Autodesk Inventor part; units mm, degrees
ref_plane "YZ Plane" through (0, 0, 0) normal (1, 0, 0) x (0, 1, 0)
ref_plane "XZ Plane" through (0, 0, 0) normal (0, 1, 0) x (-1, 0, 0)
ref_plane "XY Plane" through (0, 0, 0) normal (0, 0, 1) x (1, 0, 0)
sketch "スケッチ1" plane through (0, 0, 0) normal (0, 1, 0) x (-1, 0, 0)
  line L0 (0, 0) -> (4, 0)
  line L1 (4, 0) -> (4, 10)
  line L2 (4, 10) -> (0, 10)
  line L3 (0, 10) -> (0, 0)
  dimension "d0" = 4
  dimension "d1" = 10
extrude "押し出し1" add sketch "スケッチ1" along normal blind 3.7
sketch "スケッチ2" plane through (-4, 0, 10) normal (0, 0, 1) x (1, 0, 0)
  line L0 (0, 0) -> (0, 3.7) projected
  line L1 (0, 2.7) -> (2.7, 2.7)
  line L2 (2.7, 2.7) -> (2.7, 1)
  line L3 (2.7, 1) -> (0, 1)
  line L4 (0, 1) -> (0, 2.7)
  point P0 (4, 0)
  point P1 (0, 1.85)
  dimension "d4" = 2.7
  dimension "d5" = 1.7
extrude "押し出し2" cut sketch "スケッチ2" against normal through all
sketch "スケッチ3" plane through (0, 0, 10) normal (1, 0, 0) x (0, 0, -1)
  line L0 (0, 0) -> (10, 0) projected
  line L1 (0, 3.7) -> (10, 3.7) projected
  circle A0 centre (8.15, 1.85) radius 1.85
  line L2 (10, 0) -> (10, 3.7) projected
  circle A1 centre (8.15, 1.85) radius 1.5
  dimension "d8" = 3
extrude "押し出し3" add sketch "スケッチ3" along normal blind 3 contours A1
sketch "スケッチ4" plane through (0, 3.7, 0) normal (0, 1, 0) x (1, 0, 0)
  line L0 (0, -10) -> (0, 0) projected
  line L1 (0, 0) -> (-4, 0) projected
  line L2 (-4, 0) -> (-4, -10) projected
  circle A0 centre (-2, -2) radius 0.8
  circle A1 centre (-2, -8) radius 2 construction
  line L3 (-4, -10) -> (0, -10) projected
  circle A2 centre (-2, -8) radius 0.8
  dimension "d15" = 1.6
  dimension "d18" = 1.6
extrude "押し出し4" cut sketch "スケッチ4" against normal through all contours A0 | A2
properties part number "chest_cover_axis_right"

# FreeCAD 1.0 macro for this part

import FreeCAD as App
import Part
import Sketcher
Q = App.Units.Quantity

doc = App.newDocument("Part")
params = doc.addObject("Spreadsheet::Sheet", "Params")
for row, (alias, value) in enumerate([
    ("sketch1_width", "4 mm"),
    ("sketch1_height", "10 mm"),
    ("pad1_length", "3.7 mm"),
    ("sketch2_width", "2.7 mm"),
    ("sketch2_height", "1.7 mm"),
    ("sketch3_diameter", "3 mm"),
    ("pad2_length", "3 mm"),
    ("sketch4_diameter", "1.6 mm"),
], start=1):
    params.set(f"A{row}", alias)
    params.set(f"B{row}", "=" + value)
    params.setAlias(f"B{row}", alias)

body = doc.addObject("PartDesign::Body", "Body")

sketch1 = body.newObject("Sketcher::SketchObject", "Sketch")
sketch1.AttachmentSupport = (doc.getObject("XZ_Plane"), [""])
sketch1.MapMode = "FlatFace"
sketch1.addGeometry([
    Part.LineSegment(App.Vector(0, 10, 0), App.Vector(0, 0, 0)),
    Part.LineSegment(App.Vector(0, 0, 0), App.Vector(-4, 0, 0)),
    Part.LineSegment(App.Vector(-4, 0, 0), App.Vector(-4, 10, 0)),
    Part.LineSegment(App.Vector(-4, 10, 0), App.Vector(0, 10, 0)),
], False)
sketch1.addConstraint([
    Sketcher.Constraint("Coincident", 0, 2, 1, 1),
    Sketcher.Constraint("Coincident", 1, 2, 2, 1),
    Sketcher.Constraint("Coincident", 2, 2, 3, 1),
    Sketcher.Constraint("Coincident", 3, 2, 0, 1),
    Sketcher.Constraint("Vertical", 0),
    Sketcher.Constraint("Horizontal", 1),
    Sketcher.Constraint("Vertical", 2),
    Sketcher.Constraint("Horizontal", 3),
    Sketcher.Constraint("Coincident", 0, 2, -1, 1),
    Sketcher.Constraint("DistanceX", 1, 2, 1, 1, Q("4 mm")),
    Sketcher.Constraint("DistanceY", 0, 2, 0, 1, Q("10 mm")),
])
sketch1.setExpression("Constraints[9]", "Params.sketch1_width")
sketch1.setExpression("Constraints[10]", "Params.sketch1_height")
pad1 = body.newObject("PartDesign::Pad", "Pad")
pad1.Profile = sketch1
pad1.setExpression("Length", "Params.pad1_length")
pad1.Reversed = True

sketch2 = body.newObject("Sketcher::SketchObject", "Sketch001")
sketch2.AttachmentSupport = (doc.getObject("XY_Plane"), [""])
sketch2.MapMode = "FlatFace"
sketch2.AttachmentOffset = App.Placement(App.Vector(0, 0, 10), App.Rotation())
sketch2.addGeometry([
    Part.LineSegment(App.Vector(-4, 2.7, 0), App.Vector(-4, 1, 0)),
    Part.LineSegment(App.Vector(-4, 1, 0), App.Vector(-1.3, 1, 0)),
    Part.LineSegment(App.Vector(-1.3, 1, 0), App.Vector(-1.3, 2.7, 0)),
    Part.LineSegment(App.Vector(-1.3, 2.7, 0), App.Vector(-4, 2.7, 0)),
], False)
sketch2.addConstraint([
    Sketcher.Constraint("Coincident", 0, 2, 1, 1),
    Sketcher.Constraint("Coincident", 1, 2, 2, 1),
    Sketcher.Constraint("Coincident", 2, 2, 3, 1),
    Sketcher.Constraint("Coincident", 3, 2, 0, 1),
    Sketcher.Constraint("Vertical", 0),
    Sketcher.Constraint("Horizontal", 1),
    Sketcher.Constraint("Vertical", 2),
    Sketcher.Constraint("Horizontal", 3),
    Sketcher.Constraint("DistanceX", 1, 1, 1, 2, Q("2.7 mm")),
    Sketcher.Constraint("DistanceY", 0, 2, 0, 1, Q("1.7 mm")),
    Sketcher.Constraint("DistanceY", -1, 1, 2, 2, Q("2.7 mm")),
    Sketcher.Constraint("DistanceX", 0, 2, -1, 1, Q("4 mm")),
])
sketch2.setExpression("Constraints[8]", "Params.sketch2_width")
sketch2.setExpression("Constraints[9]", "Params.sketch2_height")
pocket1 = body.newObject("PartDesign::Pocket", "Pocket")
pocket1.Profile = sketch2
pocket1.Type = "ThroughAll"

sketch3 = body.newObject("Sketcher::SketchObject", "Sketch002")
sketch3.AttachmentSupport = (doc.getObject("YZ_Plane"), [""])
sketch3.MapMode = "FlatFace"
sketch3.addGeometry(Part.Circle(App.Vector(1.9, 1.9, 0), App.Vector(0, 0, 1), 1.5), False)
sketch3.addConstraint([
    Sketcher.Constraint("Diameter", 0, Q("3 mm")),
    Sketcher.Constraint("DistanceX", -1, 1, 0, 3, Q("1.85 mm")),
    Sketcher.Constraint("DistanceY", -1, 1, 0, 3, Q("1.85 mm")),
])
sketch3.setExpression("Constraints[0]", "Params.sketch3_diameter")
pad2 = body.newObject("PartDesign::Pad", "Pad001")
pad2.Profile = sketch3
pad2.setExpression("Length", "Params.pad2_length")

sketch4 = body.newObject("Sketcher::SketchObject", "Sketch003")
sketch4.AttachmentSupport = (doc.getObject("XZ_Plane"), [""])
sketch4.MapMode = "FlatFace"
sketch4.AttachmentOffset = App.Placement(App.Vector(0, 0, -3.7), App.Rotation())
sketch4.addGeometry([
    Part.Circle(App.Vector(-2, 2, 0), App.Vector(0, 0, 1), 0.8),
    Part.Circle(App.Vector(-2, 8, 0), App.Vector(0, 0, 1), 0.8),
], False)
sketch4.addConstraint([
    Sketcher.Constraint("Equal", 0, 1),
    Sketcher.Constraint("Vertical", 0, 3, 1, 3),
    Sketcher.Constraint("Diameter", 0, Q("1.6 mm")),
    Sketcher.Constraint("DistanceX", 0, 3, -1, 1, Q("2 mm")),
    Sketcher.Constraint("DistanceY", -1, 1, 0, 3, Q("2 mm")),
    Sketcher.Constraint("DistanceY", -1, 1, 1, 3, Q("8 mm")),
])
sketch4.setExpression("Constraints[2]", "Params.sketch4_diameter")
pocket2 = body.newObject("PartDesign::Pocket", "Pocket001")
pocket2.Profile = sketch4
pocket2.Type = "ThroughAll"
pocket2.Reversed = True

doc.recompute()
